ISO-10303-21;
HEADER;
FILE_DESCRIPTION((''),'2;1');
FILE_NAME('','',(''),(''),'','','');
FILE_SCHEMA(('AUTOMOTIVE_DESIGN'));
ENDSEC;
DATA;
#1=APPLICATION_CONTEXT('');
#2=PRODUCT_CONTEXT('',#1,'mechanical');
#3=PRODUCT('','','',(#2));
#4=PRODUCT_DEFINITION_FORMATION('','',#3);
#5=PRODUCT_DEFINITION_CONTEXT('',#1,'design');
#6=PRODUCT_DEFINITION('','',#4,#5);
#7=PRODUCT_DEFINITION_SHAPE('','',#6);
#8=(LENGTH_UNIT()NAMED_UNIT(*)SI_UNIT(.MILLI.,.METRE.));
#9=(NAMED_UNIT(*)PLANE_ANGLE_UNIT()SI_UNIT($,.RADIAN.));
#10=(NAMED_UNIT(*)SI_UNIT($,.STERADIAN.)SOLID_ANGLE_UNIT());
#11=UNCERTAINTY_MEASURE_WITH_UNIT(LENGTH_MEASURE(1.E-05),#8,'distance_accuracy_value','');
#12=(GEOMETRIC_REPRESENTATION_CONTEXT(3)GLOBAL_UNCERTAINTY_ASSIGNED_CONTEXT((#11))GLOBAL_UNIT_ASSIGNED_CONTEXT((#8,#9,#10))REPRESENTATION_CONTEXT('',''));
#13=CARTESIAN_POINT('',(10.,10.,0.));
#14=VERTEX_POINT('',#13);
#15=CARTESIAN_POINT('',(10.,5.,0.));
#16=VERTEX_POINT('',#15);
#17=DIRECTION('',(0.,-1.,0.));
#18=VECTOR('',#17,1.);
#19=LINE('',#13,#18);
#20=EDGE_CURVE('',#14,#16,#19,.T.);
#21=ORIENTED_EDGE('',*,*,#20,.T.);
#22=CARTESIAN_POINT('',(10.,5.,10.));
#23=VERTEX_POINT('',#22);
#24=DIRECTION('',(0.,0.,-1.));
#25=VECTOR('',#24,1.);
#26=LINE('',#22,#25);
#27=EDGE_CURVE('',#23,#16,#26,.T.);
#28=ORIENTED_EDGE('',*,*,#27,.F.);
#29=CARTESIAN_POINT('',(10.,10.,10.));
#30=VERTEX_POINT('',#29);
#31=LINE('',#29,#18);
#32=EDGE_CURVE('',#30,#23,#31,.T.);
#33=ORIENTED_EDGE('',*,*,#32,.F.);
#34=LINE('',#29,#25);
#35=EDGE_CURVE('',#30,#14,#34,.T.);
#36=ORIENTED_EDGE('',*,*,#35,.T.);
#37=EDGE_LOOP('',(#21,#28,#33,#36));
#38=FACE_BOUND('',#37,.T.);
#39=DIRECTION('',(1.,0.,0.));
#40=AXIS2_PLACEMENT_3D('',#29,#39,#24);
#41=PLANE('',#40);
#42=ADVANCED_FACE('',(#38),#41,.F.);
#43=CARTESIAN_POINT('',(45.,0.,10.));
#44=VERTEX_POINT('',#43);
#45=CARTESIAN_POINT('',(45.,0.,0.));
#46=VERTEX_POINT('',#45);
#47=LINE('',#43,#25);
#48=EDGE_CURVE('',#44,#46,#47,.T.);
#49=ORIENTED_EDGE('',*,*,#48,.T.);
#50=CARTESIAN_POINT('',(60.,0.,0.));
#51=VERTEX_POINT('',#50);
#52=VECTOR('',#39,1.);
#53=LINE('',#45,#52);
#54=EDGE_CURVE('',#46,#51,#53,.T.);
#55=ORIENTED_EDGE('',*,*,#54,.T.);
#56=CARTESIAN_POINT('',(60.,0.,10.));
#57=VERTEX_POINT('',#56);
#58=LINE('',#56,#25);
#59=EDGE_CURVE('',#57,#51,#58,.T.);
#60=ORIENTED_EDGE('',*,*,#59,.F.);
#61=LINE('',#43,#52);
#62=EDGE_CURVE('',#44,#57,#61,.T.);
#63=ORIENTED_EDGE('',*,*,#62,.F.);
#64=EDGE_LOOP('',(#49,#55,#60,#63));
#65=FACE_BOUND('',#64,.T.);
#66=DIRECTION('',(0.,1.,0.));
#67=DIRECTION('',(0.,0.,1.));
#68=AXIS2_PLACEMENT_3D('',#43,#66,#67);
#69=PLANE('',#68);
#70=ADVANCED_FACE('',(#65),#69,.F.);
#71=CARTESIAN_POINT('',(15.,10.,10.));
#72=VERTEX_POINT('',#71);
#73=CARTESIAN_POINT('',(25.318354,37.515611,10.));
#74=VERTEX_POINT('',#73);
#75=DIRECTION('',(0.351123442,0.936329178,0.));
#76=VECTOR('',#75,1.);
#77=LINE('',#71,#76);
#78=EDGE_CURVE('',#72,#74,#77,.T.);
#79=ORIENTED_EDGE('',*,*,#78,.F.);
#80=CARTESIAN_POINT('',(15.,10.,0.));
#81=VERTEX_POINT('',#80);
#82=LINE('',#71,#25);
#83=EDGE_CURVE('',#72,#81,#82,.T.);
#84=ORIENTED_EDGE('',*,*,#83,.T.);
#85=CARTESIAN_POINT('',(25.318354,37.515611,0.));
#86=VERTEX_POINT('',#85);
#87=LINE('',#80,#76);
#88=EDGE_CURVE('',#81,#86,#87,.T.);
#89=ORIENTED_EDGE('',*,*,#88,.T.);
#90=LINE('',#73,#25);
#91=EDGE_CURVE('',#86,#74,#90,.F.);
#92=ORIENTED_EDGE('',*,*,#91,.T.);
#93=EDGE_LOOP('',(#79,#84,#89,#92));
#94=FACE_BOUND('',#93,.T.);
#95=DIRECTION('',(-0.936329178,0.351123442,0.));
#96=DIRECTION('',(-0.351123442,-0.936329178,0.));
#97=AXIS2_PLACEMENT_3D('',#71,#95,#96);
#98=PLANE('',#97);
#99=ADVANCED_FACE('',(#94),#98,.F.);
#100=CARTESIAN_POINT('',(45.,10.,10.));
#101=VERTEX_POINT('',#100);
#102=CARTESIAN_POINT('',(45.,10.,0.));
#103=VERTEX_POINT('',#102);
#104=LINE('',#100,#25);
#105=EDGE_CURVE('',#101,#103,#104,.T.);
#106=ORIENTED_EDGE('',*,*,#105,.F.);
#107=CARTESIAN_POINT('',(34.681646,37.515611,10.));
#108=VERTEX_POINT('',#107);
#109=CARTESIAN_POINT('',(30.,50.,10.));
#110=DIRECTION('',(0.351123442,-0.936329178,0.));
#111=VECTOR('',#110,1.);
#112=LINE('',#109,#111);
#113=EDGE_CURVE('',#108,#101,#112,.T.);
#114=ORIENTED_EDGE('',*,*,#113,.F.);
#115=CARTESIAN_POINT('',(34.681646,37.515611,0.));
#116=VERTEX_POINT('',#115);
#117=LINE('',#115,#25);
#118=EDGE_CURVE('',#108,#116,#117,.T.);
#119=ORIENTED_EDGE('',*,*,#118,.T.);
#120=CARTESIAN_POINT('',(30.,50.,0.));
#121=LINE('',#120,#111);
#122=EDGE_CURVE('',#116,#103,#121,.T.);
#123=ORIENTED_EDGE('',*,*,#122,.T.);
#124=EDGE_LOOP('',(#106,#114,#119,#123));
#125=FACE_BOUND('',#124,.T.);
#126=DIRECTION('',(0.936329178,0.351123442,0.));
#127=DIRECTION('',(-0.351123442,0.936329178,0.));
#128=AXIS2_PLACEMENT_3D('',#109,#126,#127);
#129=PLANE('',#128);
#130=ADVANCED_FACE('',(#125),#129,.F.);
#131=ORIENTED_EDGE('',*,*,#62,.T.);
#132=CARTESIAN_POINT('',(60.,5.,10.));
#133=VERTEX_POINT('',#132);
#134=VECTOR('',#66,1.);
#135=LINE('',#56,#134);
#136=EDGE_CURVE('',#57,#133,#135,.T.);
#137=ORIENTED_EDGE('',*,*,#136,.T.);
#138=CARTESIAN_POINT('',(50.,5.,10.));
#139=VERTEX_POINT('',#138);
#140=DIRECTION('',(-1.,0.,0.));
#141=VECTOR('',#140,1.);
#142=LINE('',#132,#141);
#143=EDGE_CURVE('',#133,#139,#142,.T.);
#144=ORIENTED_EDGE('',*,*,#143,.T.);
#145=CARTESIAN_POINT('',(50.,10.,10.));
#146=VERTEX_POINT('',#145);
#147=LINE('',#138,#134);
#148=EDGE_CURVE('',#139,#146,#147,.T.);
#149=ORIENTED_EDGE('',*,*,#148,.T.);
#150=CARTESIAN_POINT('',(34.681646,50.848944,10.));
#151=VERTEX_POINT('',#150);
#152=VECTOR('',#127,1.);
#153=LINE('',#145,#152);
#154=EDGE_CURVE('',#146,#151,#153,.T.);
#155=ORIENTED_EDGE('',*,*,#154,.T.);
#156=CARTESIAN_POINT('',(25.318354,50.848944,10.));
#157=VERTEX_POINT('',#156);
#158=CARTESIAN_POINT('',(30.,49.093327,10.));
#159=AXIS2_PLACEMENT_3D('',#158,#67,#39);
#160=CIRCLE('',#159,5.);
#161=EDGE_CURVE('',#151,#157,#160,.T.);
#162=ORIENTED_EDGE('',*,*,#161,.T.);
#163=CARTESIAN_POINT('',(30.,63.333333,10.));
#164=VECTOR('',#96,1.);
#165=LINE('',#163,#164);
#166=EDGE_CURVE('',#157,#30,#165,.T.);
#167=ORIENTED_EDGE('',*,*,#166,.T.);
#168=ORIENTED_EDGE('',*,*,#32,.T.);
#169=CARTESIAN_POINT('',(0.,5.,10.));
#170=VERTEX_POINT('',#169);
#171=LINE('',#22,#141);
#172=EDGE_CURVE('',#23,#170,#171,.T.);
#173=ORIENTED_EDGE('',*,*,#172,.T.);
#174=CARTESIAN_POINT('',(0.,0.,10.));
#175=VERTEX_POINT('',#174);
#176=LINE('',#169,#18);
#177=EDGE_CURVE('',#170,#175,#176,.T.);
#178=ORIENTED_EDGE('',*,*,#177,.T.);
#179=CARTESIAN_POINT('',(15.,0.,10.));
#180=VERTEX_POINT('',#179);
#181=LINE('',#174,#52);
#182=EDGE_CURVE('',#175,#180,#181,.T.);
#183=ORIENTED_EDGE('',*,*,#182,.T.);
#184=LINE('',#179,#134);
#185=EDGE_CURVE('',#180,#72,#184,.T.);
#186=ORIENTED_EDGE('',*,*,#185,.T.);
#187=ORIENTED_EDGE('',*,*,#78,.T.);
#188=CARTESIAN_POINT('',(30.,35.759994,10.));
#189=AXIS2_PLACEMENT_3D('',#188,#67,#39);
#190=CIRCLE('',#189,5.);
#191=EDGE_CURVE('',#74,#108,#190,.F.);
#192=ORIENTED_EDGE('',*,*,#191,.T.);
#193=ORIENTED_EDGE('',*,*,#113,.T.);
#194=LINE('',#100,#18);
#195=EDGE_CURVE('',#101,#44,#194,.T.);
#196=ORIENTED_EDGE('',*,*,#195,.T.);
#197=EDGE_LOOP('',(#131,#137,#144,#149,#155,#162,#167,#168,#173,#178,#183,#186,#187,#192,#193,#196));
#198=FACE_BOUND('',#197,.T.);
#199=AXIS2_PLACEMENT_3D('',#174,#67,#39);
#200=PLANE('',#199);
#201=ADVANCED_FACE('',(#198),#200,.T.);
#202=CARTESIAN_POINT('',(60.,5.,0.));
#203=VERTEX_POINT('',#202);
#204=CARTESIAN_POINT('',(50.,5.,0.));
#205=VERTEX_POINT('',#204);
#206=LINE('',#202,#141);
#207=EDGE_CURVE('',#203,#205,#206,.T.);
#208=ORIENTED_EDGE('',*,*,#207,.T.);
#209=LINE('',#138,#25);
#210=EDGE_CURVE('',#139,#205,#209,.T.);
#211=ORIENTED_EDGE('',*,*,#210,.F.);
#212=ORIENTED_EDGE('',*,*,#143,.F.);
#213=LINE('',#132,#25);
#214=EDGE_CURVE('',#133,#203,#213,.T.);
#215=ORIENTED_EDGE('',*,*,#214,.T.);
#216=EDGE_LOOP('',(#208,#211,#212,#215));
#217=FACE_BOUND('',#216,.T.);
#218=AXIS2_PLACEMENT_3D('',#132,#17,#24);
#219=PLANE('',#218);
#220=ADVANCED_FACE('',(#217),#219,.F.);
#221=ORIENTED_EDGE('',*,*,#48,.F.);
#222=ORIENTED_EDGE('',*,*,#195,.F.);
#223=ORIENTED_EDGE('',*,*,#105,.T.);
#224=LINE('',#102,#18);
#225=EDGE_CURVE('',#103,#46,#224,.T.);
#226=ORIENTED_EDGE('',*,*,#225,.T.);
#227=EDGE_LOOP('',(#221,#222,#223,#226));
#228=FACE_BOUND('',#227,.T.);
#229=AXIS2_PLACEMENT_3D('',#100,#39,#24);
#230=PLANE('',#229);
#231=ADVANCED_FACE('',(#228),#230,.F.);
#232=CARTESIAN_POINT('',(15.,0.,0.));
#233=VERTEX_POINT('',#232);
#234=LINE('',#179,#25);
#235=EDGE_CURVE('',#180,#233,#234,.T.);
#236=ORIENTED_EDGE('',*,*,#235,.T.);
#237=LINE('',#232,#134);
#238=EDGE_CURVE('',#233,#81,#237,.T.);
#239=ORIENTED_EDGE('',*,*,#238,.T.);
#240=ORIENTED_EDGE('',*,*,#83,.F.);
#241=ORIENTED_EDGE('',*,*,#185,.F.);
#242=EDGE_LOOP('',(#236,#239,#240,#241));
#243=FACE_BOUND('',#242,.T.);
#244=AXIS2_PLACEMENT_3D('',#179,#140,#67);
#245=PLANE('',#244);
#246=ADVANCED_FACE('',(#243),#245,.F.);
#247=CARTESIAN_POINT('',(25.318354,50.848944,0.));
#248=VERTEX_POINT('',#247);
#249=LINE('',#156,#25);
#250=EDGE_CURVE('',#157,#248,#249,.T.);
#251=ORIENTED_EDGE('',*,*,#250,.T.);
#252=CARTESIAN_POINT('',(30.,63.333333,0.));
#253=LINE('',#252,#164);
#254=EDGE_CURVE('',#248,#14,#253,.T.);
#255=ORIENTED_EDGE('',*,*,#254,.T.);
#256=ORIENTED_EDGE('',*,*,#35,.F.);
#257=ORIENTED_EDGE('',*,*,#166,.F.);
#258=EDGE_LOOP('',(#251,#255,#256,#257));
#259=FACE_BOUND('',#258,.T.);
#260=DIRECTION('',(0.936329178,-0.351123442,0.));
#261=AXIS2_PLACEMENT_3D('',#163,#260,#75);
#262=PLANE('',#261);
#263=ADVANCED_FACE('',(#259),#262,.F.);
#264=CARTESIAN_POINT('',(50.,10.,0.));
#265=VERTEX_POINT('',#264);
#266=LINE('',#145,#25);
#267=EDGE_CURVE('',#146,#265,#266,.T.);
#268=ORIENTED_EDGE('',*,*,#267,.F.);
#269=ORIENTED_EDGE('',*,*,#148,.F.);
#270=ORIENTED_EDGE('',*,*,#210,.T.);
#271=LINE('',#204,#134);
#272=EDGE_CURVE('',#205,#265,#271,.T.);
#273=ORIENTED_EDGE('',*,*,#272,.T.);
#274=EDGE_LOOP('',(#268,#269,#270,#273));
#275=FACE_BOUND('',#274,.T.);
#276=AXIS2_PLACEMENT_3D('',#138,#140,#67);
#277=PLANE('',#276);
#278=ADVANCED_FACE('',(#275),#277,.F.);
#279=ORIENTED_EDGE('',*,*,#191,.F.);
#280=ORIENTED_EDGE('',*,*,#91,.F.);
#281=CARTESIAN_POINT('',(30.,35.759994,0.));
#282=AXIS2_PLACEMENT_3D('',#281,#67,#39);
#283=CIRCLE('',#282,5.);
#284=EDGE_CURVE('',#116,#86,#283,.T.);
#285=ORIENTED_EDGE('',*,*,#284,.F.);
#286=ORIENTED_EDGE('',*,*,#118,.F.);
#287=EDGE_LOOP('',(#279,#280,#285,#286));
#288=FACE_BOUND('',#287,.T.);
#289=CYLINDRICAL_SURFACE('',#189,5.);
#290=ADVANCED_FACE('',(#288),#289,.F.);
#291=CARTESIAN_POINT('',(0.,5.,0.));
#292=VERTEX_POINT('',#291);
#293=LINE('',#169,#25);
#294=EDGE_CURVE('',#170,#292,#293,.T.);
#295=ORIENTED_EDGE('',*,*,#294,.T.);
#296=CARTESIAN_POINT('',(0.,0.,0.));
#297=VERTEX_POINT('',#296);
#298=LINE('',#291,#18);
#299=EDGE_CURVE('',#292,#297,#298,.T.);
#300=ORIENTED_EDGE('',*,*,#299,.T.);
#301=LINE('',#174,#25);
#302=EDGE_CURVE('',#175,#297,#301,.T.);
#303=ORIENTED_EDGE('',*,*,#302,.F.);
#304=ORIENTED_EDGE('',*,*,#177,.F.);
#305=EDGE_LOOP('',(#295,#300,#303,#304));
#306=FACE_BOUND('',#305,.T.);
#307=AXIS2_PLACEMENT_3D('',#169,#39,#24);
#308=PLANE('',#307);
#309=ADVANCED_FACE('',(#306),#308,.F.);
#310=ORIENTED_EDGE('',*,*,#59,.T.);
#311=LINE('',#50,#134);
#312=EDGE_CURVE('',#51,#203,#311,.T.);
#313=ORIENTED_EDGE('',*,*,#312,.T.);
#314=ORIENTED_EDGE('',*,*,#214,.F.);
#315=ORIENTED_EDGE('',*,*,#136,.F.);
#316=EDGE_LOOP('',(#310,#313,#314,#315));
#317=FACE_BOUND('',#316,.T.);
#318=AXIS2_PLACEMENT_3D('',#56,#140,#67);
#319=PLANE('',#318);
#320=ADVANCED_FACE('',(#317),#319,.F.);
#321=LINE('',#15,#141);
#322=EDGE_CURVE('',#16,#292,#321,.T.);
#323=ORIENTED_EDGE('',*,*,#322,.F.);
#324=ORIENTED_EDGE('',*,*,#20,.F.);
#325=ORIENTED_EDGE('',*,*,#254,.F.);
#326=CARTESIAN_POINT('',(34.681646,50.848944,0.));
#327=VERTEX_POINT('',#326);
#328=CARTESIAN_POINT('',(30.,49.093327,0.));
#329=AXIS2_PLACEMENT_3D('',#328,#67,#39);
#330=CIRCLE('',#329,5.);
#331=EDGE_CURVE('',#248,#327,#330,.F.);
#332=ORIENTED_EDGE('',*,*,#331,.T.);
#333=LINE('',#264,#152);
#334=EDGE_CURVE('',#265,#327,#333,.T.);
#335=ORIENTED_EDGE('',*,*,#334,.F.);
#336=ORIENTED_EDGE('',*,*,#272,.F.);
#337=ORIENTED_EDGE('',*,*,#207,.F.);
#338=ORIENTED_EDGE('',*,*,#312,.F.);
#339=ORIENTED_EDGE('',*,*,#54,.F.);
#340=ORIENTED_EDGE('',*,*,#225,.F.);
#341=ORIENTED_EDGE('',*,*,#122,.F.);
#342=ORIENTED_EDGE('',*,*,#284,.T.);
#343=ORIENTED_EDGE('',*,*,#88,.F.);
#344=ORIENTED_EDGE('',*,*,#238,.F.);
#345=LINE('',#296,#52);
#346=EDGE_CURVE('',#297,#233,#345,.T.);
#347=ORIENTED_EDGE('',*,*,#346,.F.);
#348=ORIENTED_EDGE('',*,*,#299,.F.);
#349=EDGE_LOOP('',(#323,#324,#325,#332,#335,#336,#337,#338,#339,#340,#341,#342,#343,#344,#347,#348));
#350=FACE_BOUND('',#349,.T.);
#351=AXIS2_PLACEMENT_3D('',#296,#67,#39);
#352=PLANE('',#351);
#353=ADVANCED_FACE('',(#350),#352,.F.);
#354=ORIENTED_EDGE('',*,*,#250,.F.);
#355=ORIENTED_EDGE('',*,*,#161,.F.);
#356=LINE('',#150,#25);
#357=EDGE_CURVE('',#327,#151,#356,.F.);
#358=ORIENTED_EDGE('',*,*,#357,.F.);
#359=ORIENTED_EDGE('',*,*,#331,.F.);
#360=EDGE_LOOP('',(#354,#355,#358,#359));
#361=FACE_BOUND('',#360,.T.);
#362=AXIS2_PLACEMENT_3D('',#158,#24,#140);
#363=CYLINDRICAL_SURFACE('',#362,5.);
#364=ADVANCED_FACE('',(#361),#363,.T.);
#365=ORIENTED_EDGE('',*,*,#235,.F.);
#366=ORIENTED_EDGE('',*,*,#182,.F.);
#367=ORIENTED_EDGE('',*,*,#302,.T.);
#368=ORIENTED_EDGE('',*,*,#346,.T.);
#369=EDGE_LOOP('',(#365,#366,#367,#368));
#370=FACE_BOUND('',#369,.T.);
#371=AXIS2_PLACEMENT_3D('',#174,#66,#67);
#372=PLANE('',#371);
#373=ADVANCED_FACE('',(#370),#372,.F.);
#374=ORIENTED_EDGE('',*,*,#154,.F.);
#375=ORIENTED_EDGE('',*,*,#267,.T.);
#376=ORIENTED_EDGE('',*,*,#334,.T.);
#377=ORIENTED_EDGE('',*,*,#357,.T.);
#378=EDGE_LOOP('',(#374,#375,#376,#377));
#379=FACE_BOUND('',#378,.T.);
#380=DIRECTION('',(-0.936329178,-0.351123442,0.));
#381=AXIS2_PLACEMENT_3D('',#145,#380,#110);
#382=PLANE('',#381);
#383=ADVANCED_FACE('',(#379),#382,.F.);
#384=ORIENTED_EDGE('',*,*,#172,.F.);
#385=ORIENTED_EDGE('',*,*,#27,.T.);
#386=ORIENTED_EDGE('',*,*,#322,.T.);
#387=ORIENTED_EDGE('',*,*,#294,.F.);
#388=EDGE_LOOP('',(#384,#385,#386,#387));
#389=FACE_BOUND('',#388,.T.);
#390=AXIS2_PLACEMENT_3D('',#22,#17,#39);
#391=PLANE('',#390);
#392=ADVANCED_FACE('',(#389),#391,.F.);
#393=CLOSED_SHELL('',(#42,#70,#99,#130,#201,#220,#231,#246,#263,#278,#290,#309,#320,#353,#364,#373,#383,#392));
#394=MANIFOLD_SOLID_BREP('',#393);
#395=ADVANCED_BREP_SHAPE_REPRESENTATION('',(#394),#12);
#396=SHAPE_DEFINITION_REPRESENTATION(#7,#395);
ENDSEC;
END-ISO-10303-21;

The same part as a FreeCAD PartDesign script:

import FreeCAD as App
import Part
import Sketcher


def edges_at(feature, points):
    """Names of the edges that pass closest to the given points."""
    edges = feature.Shape.Edges
    near = lambda p: min(range(len(edges)), key=lambda i: edges[i].distToShape(Part.Vertex(*p))[0])
    return sorted({f"Edge{near(p) + 1}" for p in points})


def add_polygon(sketch, points):
    """Adds a closed chain of lines whose ends are joined by coincident constraints."""
    first, n = sketch.GeometryCount, len(points)
    for a, b in zip(points, points[1:] + points[:1]):
        sketch.addGeometry(Part.LineSegment(App.Vector(*a, 0), App.Vector(*b, 0)), False)
    for i in range(n):
        sketch.addConstraint(Sketcher.Constraint("Coincident", first + i, 2, first + (i + 1) % n, 1))

doc = App.newDocument("Part")
params = doc.addObject("Spreadsheet::Sheet", "Params")
for row, (alias, value) in enumerate([
    ("sketch1_width", "15 mm"),
    ("sketch1_width2", "10 mm"),
    ("pad1_length", "10 mm"),
    ("fillet_radius", "5 mm"),
    ("fillet2_radius", "5 mm"),
], start=1):
    params.set(f"A{row}", alias)
    params.set(f"B{row}", "=" + value)
    params.setAlias(f"B{row}", alias)

body = doc.addObject("PartDesign::Body", "Body")

sketch1 = body.newObject("Sketcher::SketchObject", "Sketch")
sketch1.AttachmentSupport = (doc.getObject("XY_Plane"), [""])
sketch1.MapMode = "FlatFace"
add_polygon(sketch1, [(0, 0), (15, 0), (15, 10), (30, 50), (45, 10), (45, 0), (60, 0), (60, 5), (50, 5), (50, 10), (30, 63), (10, 10), (10, 5), (0, 5)])
sketch1.addConstraint([
    Sketcher.Constraint("Horizontal", 0),
    Sketcher.Constraint("Vertical", 1),
    Sketcher.Constraint("Vertical", 4),
    Sketcher.Constraint("Horizontal", 5),
    Sketcher.Constraint("Vertical", 6),
    Sketcher.Constraint("Horizontal", 7),
    Sketcher.Constraint("Vertical", 8),
    Sketcher.Constraint("Vertical", 11),
    Sketcher.Constraint("Horizontal", 12),
    Sketcher.Constraint("Vertical", 13),
    Sketcher.Constraint("Coincident", 13, 2, -1, 1),
    Sketcher.Constraint("PointOnObject", 4, 2, -1),
    Sketcher.Constraint("Parallel", 3, 9),
    Sketcher.Constraint("Parallel", 2, 10),
    Sketcher.Constraint("Horizontal", 1, 2, 3, 2),
    Sketcher.Constraint("Horizontal", 3, 2, 8, 2),
    Sketcher.Constraint("Horizontal", 8, 2, 10, 2),
    Sketcher.Constraint("Horizontal", 7, 2, 11, 2),
    Sketcher.Constraint("Vertical", 2, 2, 9, 2),
    Sketcher.Constraint("Equal", 0, 5),
    Sketcher.Constraint("Equal", 7, 12),
    Sketcher.Constraint("Equal", 12, 1),
    Sketcher.Constraint("Equal", 6, 8),
    Sketcher.Constraint("DistanceX", 0, 1, 0, 2, 15.0),
    Sketcher.Constraint("DistanceX", 7, 2, 7, 1, 10.0),
    Sketcher.Constraint("DistanceX", -1, 1, 2, 2, 30.0),
    Sketcher.Constraint("DistanceY", -1, 1, 2, 2, 50.0),
])
sketch1.setExpression("Constraints[37]", "Params.sketch1_width")
sketch1.setExpression("Constraints[38]", "Params.sketch1_width2")
pad1 = body.newObject("PartDesign::Pad", "Pad")
pad1.Profile = sketch1
pad1.setExpression("Length", "Params.pad1_length")
doc.recompute()

fillet = body.newObject("PartDesign::Fillet", "Fillet")
fillet.Base = (pad1, edges_at(pad1, [(30, 50, 5)]))
fillet.setExpression("Radius", "Params.fillet_radius")
doc.recompute()

fillet2 = body.newObject("PartDesign::Fillet", "Fillet001")
fillet2.Base = (fillet, edges_at(fillet, [(30, 63.333, 5)]))
fillet2.setExpression("Radius", "Params.fillet2_radius")

doc.recompute()
